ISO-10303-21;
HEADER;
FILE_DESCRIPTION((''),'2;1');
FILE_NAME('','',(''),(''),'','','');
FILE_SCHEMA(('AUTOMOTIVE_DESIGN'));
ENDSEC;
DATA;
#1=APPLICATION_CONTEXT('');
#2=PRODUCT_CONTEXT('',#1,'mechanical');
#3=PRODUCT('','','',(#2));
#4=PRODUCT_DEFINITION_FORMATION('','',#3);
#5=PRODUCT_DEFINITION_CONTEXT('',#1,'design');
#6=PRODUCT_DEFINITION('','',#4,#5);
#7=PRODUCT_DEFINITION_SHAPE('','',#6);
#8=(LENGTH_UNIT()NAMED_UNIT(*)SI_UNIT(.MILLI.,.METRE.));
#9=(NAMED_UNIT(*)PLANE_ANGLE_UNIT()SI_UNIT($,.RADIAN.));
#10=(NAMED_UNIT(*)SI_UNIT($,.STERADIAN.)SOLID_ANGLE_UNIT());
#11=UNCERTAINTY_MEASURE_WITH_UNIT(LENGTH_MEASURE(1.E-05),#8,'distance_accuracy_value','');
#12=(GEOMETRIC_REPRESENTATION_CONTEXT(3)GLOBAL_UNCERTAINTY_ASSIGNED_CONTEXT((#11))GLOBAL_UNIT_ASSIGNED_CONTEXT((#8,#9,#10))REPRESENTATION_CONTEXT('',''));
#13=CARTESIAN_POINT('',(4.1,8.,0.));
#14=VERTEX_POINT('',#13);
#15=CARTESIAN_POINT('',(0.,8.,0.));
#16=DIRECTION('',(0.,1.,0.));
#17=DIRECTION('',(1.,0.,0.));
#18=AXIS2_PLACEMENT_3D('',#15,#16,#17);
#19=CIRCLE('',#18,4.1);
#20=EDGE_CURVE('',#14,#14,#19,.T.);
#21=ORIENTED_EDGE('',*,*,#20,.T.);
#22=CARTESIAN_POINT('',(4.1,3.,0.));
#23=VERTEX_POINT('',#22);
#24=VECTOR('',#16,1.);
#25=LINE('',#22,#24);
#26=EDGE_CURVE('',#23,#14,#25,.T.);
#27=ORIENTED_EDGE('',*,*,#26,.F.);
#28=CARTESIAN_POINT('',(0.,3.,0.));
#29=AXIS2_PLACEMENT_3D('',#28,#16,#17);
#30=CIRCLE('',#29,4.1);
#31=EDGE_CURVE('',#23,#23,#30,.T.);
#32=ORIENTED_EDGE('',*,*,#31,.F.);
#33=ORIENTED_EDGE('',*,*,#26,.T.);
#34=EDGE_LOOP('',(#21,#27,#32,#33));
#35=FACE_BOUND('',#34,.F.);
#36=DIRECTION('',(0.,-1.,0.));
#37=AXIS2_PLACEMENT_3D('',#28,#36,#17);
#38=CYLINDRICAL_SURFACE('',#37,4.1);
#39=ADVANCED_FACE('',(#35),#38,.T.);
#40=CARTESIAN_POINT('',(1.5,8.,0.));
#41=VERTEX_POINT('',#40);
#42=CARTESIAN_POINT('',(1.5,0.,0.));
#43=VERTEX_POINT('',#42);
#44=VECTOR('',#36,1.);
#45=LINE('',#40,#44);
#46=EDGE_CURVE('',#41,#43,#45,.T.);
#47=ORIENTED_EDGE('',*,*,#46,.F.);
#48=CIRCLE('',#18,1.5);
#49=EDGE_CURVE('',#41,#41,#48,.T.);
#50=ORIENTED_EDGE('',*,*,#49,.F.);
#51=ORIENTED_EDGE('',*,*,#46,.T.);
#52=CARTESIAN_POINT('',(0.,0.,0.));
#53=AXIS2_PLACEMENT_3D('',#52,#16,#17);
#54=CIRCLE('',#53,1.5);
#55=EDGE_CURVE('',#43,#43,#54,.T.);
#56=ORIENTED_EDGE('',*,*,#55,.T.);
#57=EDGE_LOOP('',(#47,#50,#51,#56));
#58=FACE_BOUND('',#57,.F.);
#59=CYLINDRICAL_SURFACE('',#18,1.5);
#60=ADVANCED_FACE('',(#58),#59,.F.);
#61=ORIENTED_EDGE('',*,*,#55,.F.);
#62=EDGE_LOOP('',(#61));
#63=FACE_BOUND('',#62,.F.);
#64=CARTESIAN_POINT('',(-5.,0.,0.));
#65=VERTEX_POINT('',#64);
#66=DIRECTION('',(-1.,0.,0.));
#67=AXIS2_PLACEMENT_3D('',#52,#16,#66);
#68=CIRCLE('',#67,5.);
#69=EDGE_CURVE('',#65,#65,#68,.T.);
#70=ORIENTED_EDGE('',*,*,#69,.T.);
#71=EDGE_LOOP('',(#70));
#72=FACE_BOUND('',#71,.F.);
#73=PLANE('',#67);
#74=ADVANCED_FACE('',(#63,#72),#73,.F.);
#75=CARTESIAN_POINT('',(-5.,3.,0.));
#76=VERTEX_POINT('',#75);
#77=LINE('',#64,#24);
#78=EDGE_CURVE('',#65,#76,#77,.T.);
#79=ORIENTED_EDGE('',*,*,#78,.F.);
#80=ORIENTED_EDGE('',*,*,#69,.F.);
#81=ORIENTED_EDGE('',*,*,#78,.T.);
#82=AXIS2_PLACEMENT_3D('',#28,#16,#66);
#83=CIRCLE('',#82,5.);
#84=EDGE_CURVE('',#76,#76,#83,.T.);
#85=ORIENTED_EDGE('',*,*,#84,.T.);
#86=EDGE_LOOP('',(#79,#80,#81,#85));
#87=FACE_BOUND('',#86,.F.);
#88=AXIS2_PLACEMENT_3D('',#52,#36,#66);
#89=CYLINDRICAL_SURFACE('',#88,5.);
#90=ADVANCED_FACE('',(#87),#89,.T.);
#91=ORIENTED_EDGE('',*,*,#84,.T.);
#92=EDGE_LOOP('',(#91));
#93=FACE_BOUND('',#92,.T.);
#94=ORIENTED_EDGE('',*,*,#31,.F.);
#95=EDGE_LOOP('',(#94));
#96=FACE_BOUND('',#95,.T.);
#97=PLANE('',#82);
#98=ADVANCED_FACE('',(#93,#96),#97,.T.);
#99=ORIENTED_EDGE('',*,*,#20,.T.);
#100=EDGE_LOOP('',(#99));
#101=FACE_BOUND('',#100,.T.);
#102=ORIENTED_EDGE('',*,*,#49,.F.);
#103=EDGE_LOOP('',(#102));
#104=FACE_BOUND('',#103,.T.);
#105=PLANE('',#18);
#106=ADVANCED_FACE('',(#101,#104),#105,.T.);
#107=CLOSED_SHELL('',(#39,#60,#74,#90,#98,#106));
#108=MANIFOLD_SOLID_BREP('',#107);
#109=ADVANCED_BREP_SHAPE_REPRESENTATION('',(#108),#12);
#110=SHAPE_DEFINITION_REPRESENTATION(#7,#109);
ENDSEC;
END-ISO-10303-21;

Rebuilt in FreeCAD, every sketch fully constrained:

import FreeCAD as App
import Part
import Sketcher
from FreeCAD import Vector
Q = App.Units.Quantity

doc = App.newDocument("Part")
body = doc.addObject("PartDesign::Body", "Body")

sketch1 = doc.addObject("Sketcher::SketchObject", "Sketch")
body.addObject(sketch1)
sketch1.AttachmentSupport = (doc.XZ_Plane, [""])
sketch1.MapMode = "FlatFace"
sketch1.addGeometry(Part.Circle(Vector(0, 0, 0), Vector(0, 0, 1), 5), False)
sketch1.addConstraint(Sketcher.Constraint("Coincident", 0, 3, -1, 1))
sketch1.addConstraint(Sketcher.Constraint("Diameter", 0, Q("10 mm")))
pad1 = doc.addObject("PartDesign::Pad", "Pad")
body.addObject(pad1)
pad1.Profile = sketch1
pad1.Length = 3
pad1.Reversed = True

sketch2 = doc.addObject("Sketcher::SketchObject", "Sketch001")
body.addObject(sketch2)
sketch2.AttachmentSupport = (doc.XZ_Plane, [""])
sketch2.MapMode = "FlatFace"
sketch2.AttachmentOffset = App.Placement(Vector(0, 0, -3), App.Rotation())
sketch2.addGeometry(Part.Circle(Vector(0, 0, 0), Vector(0, 0, 1), 4.1), False)
sketch2.addConstraint(Sketcher.Constraint("Coincident", 0, 3, -1, 1))
sketch2.addConstraint(Sketcher.Constraint("Diameter", 0, Q("8.2 mm")))
pad2 = doc.addObject("PartDesign::Pad", "Pad001")
body.addObject(pad2)
pad2.Profile = sketch2
pad2.Length = 5
pad2.Reversed = True

sketch3 = doc.addObject("Sketcher::SketchObject", "Sketch002")
body.addObject(sketch3)
sketch3.AttachmentSupport = (doc.XZ_Plane, [""])
sketch3.MapMode = "FlatFace"
sketch3.AttachmentOffset = App.Placement(Vector(0, 0, -8), App.Rotation())
sketch3.addGeometry(Part.Circle(Vector(0, 0, 0), Vector(0, 0, 1), 1.5), False)
sketch3.addConstraint(Sketcher.Constraint("Coincident", 0, 3, -1, 1))
sketch3.addConstraint(Sketcher.Constraint("Diameter", 0, Q("3 mm")))
pocket1 = doc.addObject("PartDesign::Pocket", "Pocket")
body.addObject(pocket1)
pocket1.Profile = sketch3
pocket1.Length = 8
pocket1.Reversed = True

doc.recompute()
